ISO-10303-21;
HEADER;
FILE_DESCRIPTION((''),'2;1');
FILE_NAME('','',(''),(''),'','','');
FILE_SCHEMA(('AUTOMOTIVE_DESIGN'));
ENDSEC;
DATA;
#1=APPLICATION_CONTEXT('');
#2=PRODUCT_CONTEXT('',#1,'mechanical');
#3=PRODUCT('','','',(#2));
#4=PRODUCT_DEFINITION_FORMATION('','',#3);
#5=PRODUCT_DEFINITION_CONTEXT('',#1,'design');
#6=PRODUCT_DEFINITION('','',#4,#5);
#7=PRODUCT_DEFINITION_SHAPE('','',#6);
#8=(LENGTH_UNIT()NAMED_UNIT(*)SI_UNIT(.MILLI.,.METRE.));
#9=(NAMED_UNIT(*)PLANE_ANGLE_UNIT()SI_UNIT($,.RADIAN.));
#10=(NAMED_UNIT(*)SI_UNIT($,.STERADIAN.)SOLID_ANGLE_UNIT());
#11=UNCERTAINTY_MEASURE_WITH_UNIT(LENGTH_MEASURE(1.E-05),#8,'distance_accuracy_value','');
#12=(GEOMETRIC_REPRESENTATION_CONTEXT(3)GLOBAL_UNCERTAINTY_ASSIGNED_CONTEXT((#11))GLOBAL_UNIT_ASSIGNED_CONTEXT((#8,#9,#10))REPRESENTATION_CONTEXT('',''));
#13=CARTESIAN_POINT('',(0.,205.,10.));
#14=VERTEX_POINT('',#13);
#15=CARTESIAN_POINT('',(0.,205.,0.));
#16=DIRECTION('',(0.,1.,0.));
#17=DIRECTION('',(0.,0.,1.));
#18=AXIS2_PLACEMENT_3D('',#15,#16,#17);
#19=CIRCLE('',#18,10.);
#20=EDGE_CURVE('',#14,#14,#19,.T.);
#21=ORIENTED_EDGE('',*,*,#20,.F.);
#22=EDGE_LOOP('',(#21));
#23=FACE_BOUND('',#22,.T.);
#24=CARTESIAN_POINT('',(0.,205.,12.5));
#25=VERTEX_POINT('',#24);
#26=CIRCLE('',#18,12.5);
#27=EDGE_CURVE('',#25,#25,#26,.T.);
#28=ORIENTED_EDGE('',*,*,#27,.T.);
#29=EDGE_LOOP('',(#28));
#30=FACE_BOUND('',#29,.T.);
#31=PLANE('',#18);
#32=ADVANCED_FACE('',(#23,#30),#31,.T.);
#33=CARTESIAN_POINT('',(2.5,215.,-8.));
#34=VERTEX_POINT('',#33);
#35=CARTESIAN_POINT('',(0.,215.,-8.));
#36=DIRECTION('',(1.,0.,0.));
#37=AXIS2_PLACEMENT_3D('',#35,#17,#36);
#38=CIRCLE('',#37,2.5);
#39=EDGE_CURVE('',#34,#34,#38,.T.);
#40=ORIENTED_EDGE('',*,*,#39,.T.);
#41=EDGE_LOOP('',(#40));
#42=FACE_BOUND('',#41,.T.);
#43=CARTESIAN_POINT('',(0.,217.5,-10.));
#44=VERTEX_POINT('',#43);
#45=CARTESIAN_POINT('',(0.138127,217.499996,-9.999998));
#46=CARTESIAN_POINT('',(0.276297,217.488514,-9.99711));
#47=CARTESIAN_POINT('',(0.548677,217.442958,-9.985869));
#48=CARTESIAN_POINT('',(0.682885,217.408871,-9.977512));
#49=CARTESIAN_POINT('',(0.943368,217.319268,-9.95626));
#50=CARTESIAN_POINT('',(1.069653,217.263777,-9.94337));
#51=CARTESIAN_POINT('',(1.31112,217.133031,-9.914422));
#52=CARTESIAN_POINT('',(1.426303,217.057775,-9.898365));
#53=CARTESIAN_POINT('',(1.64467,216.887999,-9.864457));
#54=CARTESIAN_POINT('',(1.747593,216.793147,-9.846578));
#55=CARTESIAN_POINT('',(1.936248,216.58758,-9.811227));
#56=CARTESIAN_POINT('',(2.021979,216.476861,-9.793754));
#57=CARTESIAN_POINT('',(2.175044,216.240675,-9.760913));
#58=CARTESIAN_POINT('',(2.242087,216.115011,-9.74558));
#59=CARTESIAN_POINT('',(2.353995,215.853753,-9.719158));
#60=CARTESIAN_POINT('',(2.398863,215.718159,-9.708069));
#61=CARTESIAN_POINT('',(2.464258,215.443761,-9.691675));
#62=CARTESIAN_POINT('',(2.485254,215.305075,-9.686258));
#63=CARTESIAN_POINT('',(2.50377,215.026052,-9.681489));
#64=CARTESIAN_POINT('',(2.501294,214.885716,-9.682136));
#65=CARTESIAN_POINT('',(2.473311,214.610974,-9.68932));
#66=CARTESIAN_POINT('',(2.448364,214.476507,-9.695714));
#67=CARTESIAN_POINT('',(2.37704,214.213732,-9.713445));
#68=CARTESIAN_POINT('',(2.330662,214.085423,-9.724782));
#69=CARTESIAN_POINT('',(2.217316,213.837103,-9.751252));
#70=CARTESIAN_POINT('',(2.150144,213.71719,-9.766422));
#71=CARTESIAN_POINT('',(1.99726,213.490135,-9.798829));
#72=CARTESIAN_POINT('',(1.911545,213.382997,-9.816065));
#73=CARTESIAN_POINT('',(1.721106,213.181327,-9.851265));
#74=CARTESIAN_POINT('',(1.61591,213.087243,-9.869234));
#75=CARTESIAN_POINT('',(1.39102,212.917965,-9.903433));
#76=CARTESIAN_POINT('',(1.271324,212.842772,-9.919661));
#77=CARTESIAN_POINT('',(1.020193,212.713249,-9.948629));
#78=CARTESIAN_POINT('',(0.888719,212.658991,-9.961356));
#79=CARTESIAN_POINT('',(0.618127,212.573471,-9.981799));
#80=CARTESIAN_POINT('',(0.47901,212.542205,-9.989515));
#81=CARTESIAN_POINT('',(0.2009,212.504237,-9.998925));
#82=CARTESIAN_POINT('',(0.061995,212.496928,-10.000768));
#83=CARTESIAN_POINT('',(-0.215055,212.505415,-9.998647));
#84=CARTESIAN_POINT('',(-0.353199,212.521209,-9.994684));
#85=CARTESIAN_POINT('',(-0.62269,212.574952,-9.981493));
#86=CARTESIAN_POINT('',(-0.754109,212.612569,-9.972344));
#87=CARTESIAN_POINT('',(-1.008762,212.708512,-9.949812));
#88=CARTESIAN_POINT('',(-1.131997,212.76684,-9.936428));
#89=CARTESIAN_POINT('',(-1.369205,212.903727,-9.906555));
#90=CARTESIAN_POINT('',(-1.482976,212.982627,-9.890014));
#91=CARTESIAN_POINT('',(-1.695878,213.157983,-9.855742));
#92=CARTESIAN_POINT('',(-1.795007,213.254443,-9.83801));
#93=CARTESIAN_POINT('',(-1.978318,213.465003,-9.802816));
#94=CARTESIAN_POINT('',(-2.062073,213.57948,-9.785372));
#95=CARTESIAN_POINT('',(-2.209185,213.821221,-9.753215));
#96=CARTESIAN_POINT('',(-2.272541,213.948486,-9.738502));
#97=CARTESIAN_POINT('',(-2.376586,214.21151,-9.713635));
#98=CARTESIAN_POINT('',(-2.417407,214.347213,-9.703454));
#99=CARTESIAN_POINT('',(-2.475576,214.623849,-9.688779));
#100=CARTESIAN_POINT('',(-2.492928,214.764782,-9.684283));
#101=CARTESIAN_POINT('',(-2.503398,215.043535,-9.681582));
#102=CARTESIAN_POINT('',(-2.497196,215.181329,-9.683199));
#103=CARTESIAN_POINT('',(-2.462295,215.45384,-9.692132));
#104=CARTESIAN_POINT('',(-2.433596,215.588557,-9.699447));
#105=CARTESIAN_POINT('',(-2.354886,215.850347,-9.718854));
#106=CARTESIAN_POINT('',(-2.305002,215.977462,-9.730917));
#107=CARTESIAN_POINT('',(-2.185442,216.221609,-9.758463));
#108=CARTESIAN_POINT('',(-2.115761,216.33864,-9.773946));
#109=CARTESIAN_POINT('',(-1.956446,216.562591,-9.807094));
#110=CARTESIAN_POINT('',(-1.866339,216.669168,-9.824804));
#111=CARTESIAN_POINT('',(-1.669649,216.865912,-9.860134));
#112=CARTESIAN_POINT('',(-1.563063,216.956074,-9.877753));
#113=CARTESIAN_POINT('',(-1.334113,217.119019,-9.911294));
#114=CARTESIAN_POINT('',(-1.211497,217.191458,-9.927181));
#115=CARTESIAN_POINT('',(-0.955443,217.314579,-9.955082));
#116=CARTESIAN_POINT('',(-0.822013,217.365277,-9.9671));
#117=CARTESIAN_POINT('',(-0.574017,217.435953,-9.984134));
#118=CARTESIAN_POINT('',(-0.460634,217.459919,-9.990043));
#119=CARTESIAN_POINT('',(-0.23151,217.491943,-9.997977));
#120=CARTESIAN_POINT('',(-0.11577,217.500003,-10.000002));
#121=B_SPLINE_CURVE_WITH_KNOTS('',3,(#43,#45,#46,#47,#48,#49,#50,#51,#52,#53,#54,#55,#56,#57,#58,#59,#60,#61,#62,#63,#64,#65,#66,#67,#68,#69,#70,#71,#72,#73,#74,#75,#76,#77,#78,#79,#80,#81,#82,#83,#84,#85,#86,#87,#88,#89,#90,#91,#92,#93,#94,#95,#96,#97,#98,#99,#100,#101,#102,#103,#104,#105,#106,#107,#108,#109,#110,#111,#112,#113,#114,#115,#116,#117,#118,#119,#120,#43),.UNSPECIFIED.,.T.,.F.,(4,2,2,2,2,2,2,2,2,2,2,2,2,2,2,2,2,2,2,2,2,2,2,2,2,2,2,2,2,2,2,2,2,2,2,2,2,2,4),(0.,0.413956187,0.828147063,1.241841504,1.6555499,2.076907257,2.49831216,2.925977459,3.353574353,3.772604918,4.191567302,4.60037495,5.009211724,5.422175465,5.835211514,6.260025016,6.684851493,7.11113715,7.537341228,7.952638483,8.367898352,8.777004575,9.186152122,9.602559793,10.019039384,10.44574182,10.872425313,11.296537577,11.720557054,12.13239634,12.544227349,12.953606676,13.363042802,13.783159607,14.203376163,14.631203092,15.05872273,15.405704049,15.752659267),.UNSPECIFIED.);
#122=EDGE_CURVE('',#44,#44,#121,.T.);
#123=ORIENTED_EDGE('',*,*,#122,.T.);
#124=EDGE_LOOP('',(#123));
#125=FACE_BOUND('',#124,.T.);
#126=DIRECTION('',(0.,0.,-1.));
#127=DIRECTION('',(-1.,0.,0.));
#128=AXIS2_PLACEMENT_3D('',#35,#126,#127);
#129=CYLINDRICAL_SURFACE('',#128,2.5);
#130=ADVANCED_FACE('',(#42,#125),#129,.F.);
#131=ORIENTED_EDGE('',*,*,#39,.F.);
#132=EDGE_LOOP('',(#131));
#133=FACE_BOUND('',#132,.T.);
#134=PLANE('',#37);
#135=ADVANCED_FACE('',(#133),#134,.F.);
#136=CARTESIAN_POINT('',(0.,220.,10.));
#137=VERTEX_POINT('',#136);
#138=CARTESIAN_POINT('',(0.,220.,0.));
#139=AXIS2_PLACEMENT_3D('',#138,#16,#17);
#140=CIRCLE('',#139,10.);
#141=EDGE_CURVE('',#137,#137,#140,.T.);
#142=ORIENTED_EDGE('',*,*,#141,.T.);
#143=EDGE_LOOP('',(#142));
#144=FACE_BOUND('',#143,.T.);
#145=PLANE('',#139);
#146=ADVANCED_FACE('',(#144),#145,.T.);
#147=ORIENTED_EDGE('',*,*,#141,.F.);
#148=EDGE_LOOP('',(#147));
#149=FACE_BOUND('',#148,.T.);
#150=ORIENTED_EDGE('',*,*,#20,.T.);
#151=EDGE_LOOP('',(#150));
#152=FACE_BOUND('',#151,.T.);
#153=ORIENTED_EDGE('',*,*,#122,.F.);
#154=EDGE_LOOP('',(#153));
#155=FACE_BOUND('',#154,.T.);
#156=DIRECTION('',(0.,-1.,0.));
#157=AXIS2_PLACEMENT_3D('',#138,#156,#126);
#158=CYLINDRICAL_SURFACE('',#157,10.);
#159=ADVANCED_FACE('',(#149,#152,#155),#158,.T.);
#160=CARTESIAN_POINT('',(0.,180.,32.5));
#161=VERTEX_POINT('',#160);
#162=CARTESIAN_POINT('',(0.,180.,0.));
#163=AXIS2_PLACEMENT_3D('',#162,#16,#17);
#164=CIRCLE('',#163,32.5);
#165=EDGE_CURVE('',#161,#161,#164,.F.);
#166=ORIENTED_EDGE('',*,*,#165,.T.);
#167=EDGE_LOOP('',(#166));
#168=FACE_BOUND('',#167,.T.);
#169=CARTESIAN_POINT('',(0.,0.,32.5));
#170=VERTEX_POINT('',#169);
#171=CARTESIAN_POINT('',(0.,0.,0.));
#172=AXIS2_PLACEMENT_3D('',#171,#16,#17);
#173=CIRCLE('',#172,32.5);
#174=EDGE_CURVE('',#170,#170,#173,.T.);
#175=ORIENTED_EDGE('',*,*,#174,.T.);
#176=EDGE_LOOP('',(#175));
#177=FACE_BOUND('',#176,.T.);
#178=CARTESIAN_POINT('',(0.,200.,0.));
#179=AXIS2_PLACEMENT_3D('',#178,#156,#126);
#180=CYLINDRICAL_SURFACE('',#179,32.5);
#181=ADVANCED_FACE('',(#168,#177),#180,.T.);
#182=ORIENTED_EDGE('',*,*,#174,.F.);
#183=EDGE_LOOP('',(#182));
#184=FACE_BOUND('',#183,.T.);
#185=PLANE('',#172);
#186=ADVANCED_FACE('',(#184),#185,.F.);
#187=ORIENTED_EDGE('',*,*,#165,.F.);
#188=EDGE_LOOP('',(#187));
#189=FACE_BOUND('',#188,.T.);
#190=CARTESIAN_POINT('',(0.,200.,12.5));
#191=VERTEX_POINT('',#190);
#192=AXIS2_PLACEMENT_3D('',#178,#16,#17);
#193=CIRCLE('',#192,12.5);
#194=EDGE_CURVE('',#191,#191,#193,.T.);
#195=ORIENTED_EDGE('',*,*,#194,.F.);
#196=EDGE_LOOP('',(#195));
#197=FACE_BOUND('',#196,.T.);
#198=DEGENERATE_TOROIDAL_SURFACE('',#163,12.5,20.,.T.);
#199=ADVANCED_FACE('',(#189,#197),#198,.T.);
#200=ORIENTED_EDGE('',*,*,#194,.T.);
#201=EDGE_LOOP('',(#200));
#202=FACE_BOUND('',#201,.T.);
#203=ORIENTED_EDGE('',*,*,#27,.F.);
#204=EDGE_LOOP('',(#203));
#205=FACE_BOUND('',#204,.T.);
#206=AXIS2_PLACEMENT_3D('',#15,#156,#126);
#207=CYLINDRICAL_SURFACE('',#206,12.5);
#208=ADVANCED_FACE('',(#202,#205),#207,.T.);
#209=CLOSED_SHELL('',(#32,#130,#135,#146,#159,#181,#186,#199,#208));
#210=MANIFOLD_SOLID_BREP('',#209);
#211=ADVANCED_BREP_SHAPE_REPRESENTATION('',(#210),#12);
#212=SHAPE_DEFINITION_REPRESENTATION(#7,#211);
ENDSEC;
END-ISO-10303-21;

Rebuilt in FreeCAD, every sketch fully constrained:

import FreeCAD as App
import Part
import Sketcher


def edges_at(feature, points):
    """Names of the edges that pass closest to the given points."""
    edges = feature.Shape.Edges
    near = lambda p: min(range(len(edges)), key=lambda i: edges[i].distToShape(Part.Vertex(*p))[0])
    return sorted({f"Edge{near(p) + 1}" for p in points})

doc = App.newDocument("Part")
params = doc.addObject("Spreadsheet::Sheet", "Params")
for row, (alias, value) in enumerate([
    ("sketch1_diameter", "65 mm"),
    ("pad1_length", "200 mm"),
    ("fillet_radius", "20 mm"),
    ("sketch2_diameter", "20 mm"),
    ("pad2_length", "20 mm"),
    ("sketch3_diameter", "5 mm"),
    ("pocket1_length", "2 mm"),
    ("sketch4_diameter", "25 mm"),
    ("sketch4_diameter2", "20 mm"),
    ("pad3_length", "5 mm"),
], start=1):
    params.set(f"A{row}", alias)
    params.set(f"B{row}", "=" + value)
    params.setAlias(f"B{row}", alias)

body = doc.addObject("PartDesign::Body", "Body")

# Sketch on XZ plane
sketch1 = doc.addObject("Sketcher::SketchObject", "Sketch")
body.addObject(sketch1)
sketch1.AttachmentSupport = (doc.XZ_Plane, [""])
sketch1.MapMode = "FlatFace"
sketch1.addGeometry(Part.Circle(App.Vector(0, 0, 0), App.Vector(0, 0, 1), 32), False)
sketch1.addConstraint(Sketcher.Constraint("Coincident", 0, 3, -1, 1))
sketch1.addConstraint(Sketcher.Constraint("Diameter", 0, 65.0))
sketch1.setExpression("Constraints[1]", "Params.sketch1_diameter")
pad1 = doc.addObject("PartDesign::Pad", "Pad")
body.addObject(pad1)
pad1.Profile = sketch1
pad1.setExpression("Length", "Params.pad1_length")
pad1.Reversed = True
doc.recompute()

fillet = doc.addObject("PartDesign::Fillet", "Fillet")
body.addObject(fillet)
fillet.Base = (pad1, edges_at(pad1, [(0, 200, -32.5)]))
fillet.setExpression("Radius", "Params.fillet_radius")

# Sketch on XZ plane
sketch2 = doc.addObject("Sketcher::SketchObject", "Sketch001")
body.addObject(sketch2)
sketch2.AttachmentSupport = (doc.XZ_Plane, [""])
sketch2.MapMode = "FlatFace"
sketch2.AttachmentOffset = App.Placement(App.Vector(0, 0, -200), App.Rotation())
sketch2.addGeometry(Part.Circle(App.Vector(0, 0, 0), App.Vector(0, 0, 1), 10), False)
sketch2.addConstraint(Sketcher.Constraint("Coincident", 0, 3, -1, 1))
sketch2.addConstraint(Sketcher.Constraint("Diameter", 0, 20.0))
sketch2.setExpression("Constraints[1]", "Params.sketch2_diameter")
pad2 = doc.addObject("PartDesign::Pad", "Pad001")
body.addObject(pad2)
pad2.Profile = sketch2
pad2.setExpression("Length", "Params.pad2_length")
pad2.Reversed = True

# Sketch on XY plane
sketch3 = doc.addObject("Sketcher::SketchObject", "Sketch002")
body.addObject(sketch3)
sketch3.AttachmentSupport = (doc.XY_Plane, [""])
sketch3.MapMode = "FlatFace"
sketch3.AttachmentOffset = App.Placement(App.Vector(0, 0, -10), App.Rotation())
sketch3.addGeometry(Part.Circle(App.Vector(0, 215, 0), App.Vector(0, 0, 1), 2.5), False)
sketch3.addConstraint(Sketcher.Constraint("PointOnObject", 0, 3, -2))
sketch3.addConstraint(Sketcher.Constraint("Diameter", 0, 5.0))
sketch3.addConstraint(Sketcher.Constraint("DistanceY", -1, 1, 0, 3, 215.0))
sketch3.setExpression("Constraints[1]", "Params.sketch3_diameter")
pocket1 = doc.addObject("PartDesign::Pocket", "Pocket")
body.addObject(pocket1)
pocket1.Profile = sketch3
pocket1.setExpression("Length", "Params.pocket1_length")
pocket1.Reversed = True

# Sketch on XZ plane
sketch4 = doc.addObject("Sketcher::SketchObject", "Sketch003")
body.addObject(sketch4)
sketch4.AttachmentSupport = (doc.XZ_Plane, [""])
sketch4.MapMode = "FlatFace"
sketch4.AttachmentOffset = App.Placement(App.Vector(0, 0, -200), App.Rotation())
sketch4.addGeometry(Part.Circle(App.Vector(0, 0, 0), App.Vector(0, 0, 1), 12), False)
sketch4.addGeometry(Part.Circle(App.Vector(0, 0, 0), App.Vector(0, 0, 1), 10), False)
sketch4.addConstraint(Sketcher.Constraint("Coincident", 0, 3, -1, 1))
sketch4.addConstraint(Sketcher.Constraint("Coincident", 1, 3, -1, 1))
sketch4.addConstraint(Sketcher.Constraint("Diameter", 0, 25.0))
sketch4.addConstraint(Sketcher.Constraint("Diameter", 1, 20.0))
sketch4.setExpression("Constraints[2]", "Params.sketch4_diameter")
sketch4.setExpression("Constraints[3]", "Params.sketch4_diameter2")
pad3 = doc.addObject("PartDesign::Pad", "Pad002")
body.addObject(pad3)
pad3.Profile = sketch4
pad3.setExpression("Length", "Params.pad3_length")
pad3.Reversed = True

doc.recompute()
